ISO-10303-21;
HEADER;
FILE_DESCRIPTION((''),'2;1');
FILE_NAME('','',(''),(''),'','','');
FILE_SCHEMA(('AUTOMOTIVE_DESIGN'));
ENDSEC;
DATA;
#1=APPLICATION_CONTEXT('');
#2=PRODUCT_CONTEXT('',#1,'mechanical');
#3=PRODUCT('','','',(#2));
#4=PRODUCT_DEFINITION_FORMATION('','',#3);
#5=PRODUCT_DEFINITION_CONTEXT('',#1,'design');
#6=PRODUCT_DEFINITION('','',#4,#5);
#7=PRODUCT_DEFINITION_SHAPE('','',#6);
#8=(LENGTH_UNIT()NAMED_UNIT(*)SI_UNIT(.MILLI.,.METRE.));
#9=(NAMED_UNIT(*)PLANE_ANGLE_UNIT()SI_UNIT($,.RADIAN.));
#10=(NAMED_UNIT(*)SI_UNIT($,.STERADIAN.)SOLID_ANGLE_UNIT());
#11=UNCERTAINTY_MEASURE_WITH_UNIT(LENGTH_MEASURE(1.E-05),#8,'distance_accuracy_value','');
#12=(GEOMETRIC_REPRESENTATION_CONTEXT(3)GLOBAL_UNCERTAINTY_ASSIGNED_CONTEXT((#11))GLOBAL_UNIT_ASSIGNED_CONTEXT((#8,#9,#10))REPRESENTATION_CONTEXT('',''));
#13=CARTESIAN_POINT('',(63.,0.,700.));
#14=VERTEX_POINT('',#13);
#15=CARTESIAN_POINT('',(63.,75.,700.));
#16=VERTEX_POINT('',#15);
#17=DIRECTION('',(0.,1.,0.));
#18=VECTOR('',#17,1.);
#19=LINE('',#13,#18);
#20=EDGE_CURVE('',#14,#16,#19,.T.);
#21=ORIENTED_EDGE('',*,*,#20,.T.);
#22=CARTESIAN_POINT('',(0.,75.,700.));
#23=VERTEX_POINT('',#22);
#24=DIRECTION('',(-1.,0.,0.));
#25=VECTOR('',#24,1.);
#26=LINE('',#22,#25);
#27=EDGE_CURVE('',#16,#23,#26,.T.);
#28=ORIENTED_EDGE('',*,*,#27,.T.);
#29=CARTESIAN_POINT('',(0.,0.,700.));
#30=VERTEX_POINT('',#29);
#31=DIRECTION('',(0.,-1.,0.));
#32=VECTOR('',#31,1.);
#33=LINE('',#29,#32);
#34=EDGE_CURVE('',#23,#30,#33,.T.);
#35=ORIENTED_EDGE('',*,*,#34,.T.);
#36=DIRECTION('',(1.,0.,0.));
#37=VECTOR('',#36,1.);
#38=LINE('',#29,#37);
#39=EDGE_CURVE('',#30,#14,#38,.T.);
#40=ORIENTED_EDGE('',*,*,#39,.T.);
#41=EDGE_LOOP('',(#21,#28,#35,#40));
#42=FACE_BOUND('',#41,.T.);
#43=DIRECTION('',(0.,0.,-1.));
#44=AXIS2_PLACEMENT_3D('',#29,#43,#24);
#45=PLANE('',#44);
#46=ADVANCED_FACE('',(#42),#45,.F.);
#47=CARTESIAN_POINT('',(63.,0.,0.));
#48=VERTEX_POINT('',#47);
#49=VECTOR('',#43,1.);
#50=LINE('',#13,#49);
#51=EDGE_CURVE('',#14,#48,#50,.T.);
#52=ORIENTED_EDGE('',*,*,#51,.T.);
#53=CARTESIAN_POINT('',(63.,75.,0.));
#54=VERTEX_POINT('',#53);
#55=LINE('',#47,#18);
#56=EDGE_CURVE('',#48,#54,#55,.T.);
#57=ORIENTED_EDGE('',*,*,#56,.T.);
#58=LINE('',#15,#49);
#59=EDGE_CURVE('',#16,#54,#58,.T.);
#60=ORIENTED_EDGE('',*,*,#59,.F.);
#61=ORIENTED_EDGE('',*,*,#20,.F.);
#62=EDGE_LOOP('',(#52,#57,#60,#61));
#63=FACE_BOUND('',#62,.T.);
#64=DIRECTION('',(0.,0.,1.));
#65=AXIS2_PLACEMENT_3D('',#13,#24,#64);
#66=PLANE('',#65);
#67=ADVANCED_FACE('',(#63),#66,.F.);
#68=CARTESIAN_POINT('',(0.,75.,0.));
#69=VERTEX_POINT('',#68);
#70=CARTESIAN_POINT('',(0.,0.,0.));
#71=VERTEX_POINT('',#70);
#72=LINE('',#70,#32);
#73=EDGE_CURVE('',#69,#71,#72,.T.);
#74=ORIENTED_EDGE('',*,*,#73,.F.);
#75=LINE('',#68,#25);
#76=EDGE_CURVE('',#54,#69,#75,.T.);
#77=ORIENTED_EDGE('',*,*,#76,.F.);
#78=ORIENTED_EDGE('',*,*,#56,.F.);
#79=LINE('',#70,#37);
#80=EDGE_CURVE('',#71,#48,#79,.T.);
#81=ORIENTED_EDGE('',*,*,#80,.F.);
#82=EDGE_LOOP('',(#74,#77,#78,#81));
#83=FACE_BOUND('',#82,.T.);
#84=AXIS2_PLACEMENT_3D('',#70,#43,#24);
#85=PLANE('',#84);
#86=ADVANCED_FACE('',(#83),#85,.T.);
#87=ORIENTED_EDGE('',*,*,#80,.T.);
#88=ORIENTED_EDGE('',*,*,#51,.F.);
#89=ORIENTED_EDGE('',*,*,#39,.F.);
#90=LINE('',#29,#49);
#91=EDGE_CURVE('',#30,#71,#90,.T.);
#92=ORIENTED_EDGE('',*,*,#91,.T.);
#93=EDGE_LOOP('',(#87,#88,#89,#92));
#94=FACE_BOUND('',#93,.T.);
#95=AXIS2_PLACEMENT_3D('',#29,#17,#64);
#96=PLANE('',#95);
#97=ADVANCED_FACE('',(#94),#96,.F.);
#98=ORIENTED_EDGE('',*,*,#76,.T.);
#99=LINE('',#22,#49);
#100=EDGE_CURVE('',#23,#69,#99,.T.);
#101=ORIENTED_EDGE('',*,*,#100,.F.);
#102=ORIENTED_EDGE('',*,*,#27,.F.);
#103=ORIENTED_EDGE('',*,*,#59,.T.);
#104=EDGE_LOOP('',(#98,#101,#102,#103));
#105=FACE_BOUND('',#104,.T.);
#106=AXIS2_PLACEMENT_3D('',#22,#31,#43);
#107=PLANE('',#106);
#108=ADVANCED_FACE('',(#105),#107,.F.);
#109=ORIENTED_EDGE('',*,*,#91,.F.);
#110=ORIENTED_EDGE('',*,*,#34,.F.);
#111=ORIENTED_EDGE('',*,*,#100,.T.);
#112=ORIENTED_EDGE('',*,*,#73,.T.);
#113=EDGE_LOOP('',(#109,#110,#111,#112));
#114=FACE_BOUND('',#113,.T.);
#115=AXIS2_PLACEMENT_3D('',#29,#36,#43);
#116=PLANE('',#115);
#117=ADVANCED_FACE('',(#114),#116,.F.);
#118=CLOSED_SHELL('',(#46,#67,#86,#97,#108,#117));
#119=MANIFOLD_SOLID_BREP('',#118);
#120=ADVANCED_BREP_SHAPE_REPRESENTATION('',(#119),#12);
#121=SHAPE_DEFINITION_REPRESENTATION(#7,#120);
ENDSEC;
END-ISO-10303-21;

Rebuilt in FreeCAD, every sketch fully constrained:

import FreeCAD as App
import Part
import Sketcher
Q = App.Units.Quantity

doc = App.newDocument("Part")
body = doc.addObject("PartDesign::Body", "Body")

# Sketch on XY plane
sketch1 = body.newObject("Sketcher::SketchObject", "Sketch")
sketch1.AttachmentSupport = (doc.getObject("XY_Plane"), [""])
sketch1.MapMode = "FlatFace"
sketch1.addGeometry([
    Part.LineSegment(App.Vector(0, 75, 0), App.Vector(0, 0, 0)),
    Part.LineSegment(App.Vector(0, 0, 0), App.Vector(63, 0, 0)),
    Part.LineSegment(App.Vector(63, 0, 0), App.Vector(63, 75, 0)),
    Part.LineSegment(App.Vector(63, 75, 0), App.Vector(0, 75, 0)),
], False)
sketch1.addConstraint([
    Sketcher.Constraint("Coincident", 0, 2, 1, 1),
    Sketcher.Constraint("Coincident", 1, 2, 2, 1),
    Sketcher.Constraint("Coincident", 2, 2, 3, 1),
    Sketcher.Constraint("Coincident", 3, 2, 0, 1),
    Sketcher.Constraint("Vertical", 0),
    Sketcher.Constraint("Horizontal", 1),
    Sketcher.Constraint("Vertical", 2),
    Sketcher.Constraint("Horizontal", 3),
    Sketcher.Constraint("Coincident", 0, 2, -1, 1),
    Sketcher.Constraint("DistanceX", 1, 1, 1, 2, Q("63 mm")),
    Sketcher.Constraint("DistanceY", 0, 2, 0, 1, Q("75 mm")),
])
pad1 = body.newObject("PartDesign::Pad", "Pad")
pad1.Profile = sketch1
pad1.Length = 700

doc.recompute()
